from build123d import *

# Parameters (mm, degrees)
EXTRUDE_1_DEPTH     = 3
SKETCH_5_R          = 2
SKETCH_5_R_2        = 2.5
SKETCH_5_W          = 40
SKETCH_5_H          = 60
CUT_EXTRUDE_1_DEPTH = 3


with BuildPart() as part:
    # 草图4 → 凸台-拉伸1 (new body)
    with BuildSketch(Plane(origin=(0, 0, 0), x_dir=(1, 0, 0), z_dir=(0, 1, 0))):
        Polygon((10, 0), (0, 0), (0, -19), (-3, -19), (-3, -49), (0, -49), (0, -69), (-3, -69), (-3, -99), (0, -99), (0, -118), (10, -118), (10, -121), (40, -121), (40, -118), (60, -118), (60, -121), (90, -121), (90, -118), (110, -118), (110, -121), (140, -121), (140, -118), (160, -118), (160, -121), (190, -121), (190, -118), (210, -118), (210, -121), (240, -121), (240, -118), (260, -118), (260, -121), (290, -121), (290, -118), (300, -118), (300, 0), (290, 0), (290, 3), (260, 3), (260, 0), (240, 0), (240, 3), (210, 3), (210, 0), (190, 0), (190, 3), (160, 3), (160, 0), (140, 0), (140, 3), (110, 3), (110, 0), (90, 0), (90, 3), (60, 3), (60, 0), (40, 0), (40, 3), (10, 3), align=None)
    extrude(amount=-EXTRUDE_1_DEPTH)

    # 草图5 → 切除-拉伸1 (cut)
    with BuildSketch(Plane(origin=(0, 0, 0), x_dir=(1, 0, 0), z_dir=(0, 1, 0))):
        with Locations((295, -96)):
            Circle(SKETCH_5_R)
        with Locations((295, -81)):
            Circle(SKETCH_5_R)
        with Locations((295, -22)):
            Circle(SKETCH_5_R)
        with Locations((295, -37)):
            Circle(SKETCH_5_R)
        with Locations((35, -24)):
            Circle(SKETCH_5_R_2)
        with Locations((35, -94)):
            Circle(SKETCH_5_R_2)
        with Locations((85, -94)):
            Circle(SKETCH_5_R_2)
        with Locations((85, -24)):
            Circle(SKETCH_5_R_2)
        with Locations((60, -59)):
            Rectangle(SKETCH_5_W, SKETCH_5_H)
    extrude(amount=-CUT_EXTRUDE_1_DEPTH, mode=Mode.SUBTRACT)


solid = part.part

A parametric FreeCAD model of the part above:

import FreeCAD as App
import Part
import Sketcher
from FreeCAD import Vector
Q = App.Units.Quantity

doc = App.newDocument("Part")
params = doc.addObject("Spreadsheet::Sheet", "Params")
for row, (alias, value) in enumerate([
    ("sketch1_width", "10 mm"),
    ("sketch1_width2", "3 mm"),
    ("sketch1_width3", "30 mm"),
    ("sketch1_width4", "20 mm"),
    ("sketch1_height", "19 mm"),
    ("pad1_length", "3 mm"),
    ("sketch2_diameter", "4 mm"),
    ("sketch2_diameter2", "5 mm"),
    ("sketch2_width", "40 mm"),
    ("sketch2_height", "60 mm"),
    ("pocket1_length", "3 mm"),
], start=1):
    params.set(f"A{row}", alias)
    params.set(f"B{row}", "=" + value)
    params.setAlias(f"B{row}", alias)

body = doc.addObject("PartDesign::Body", "Body")

# Sketch on XZ plane
sketch1 = doc.addObject("Sketcher::SketchObject", "Sketch")
body.addObject(sketch1)
sketch1.AttachmentSupport = (doc.XZ_Plane, [""])
sketch1.MapMode = "FlatFace"
sketch1.addGeometry([
    Part.LineSegment(Vector(10, 0, 0), Vector(0, 0, 0)),  # 0
    Part.LineSegment(Vector(0, 0, 0), Vector(0, 19, 0)),  # 1
    Part.LineSegment(Vector(0, 19, 0), Vector(-3, 19, 0)),  # 2
    Part.LineSegment(Vector(-3, 19, 0), Vector(-3, 49, 0)),  # 3
    Part.LineSegment(Vector(-3, 49, 0), Vector(0, 49, 0)),  # 4
    Part.LineSegment(Vector(0, 49, 0), Vector(0, 69, 0)),  # 5
    Part.LineSegment(Vector(0, 69, 0), Vector(-3, 69, 0)),  # 6
    Part.LineSegment(Vector(-3, 69, 0), Vector(-3, 99, 0)),  # 7
    Part.LineSegment(Vector(-3, 99, 0), Vector(0, 99, 0)),  # 8
    Part.LineSegment(Vector(0, 99, 0), Vector(0, 118, 0)),  # 9
    Part.LineSegment(Vector(0, 118, 0), Vector(10, 118, 0)),  # 10
    Part.LineSegment(Vector(10, 118, 0), Vector(10, 121, 0)),  # 11
    Part.LineSegment(Vector(10, 121, 0), Vector(40, 121, 0)),  # 12
    Part.LineSegment(Vector(40, 121, 0), Vector(40, 118, 0)),  # 13
    Part.LineSegment(Vector(40, 118, 0), Vector(60, 118, 0)),  # 14
    Part.LineSegment(Vector(60, 118, 0), Vector(60, 121, 0)),  # 15
    Part.LineSegment(Vector(60, 121, 0), Vector(90, 121, 0)),  # 16
    Part.LineSegment(Vector(90, 121, 0), Vector(90, 118, 0)),  # 17
    Part.LineSegment(Vector(90, 118, 0), Vector(110, 118, 0)),  # 18
    Part.LineSegment(Vector(110, 118, 0), Vector(110, 121, 0)),  # 19
    Part.LineSegment(Vector(110, 121, 0), Vector(140, 121, 0)),  # 20
    Part.LineSegment(Vector(140, 121, 0), Vector(140, 118, 0)),  # 21
    Part.LineSegment(Vector(140, 118, 0), Vector(160, 118, 0)),  # 22
    Part.LineSegment(Vector(160, 118, 0), Vector(160, 121, 0)),  # 23
    Part.LineSegment(Vector(160, 121, 0), Vector(190, 121, 0)),  # 24
    Part.LineSegment(Vector(190, 121, 0), Vector(190, 118, 0)),  # 25
    Part.LineSegment(Vector(190, 118, 0), Vector(210, 118, 0)),  # 26
    Part.LineSegment(Vector(210, 118, 0), Vector(210, 121, 0)),  # 27
    Part.LineSegment(Vector(210, 121, 0), Vector(240, 121, 0)),  # 28
    Part.LineSegment(Vector(240, 121, 0), Vector(240, 118, 0)),  # 29
    Part.LineSegment(Vector(240, 118, 0), Vector(260, 118, 0)),  # 30
    Part.LineSegment(Vector(260, 118, 0), Vector(260, 121, 0)),  # 31
    Part.LineSegment(Vector(260, 121, 0), Vector(290, 121, 0)),  # 32
    Part.LineSegment(Vector(290, 121, 0), Vector(290, 118, 0)),  # 33
    Part.LineSegment(Vector(290, 118, 0), Vector(300, 118, 0)),  # 34
    Part.LineSegment(Vector(300, 118, 0), Vector(300, 0, 0)),  # 35
    Part.LineSegment(Vector(300, 0, 0), Vector(290, 0, 0)),  # 36
    Part.LineSegment(Vector(290, 0, 0), Vector(290, -3, 0)),  # 37
    Part.LineSegment(Vector(290, -3, 0), Vector(260, -3, 0)),  # 38
    Part.LineSegment(Vector(260, -3, 0), Vector(260, 0, 0)),  # 39
    Part.LineSegment(Vector(260, 0, 0), Vector(240, 0, 0)),  # 40
    Part.LineSegment(Vector(240, 0, 0), Vector(240, -3, 0)),  # 41
    Part.LineSegment(Vector(240, -3, 0), Vector(210, -3, 0)),  # 42
    Part.LineSegment(Vector(210, -3, 0), Vector(210, 0, 0)),  # 43
    Part.LineSegment(Vector(210, 0, 0), Vector(190, 0, 0)),  # 44
    Part.LineSegment(Vector(190, 0, 0), Vector(190, -3, 0)),  # 45
    Part.LineSegment(Vector(190, -3, 0), Vector(160, -3, 0)),  # 46
    Part.LineSegment(Vector(160, -3, 0), Vector(160, 0, 0)),  # 47
    Part.LineSegment(Vector(160, 0, 0), Vector(140, 0, 0)),  # 48
    Part.LineSegment(Vector(140, 0, 0), Vector(140, -3, 0)),  # 49
    Part.LineSegment(Vector(140, -3, 0), Vector(110, -3, 0)),  # 50
    Part.LineSegment(Vector(110, -3, 0), Vector(110, 0, 0)),  # 51
    Part.LineSegment(Vector(110, 0, 0), Vector(90, 0, 0)),  # 52
    Part.LineSegment(Vector(90, 0, 0), Vector(90, -3, 0)),  # 53
    Part.LineSegment(Vector(90, -3, 0), Vector(60, -3, 0)),  # 54
    Part.LineSegment(Vector(60, -3, 0), Vector(60, 0, 0)),  # 55
    Part.LineSegment(Vector(60, 0, 0), Vector(40, 0, 0)),  # 56
    Part.LineSegment(Vector(40, 0, 0), Vector(40, -3, 0)),  # 57
    Part.LineSegment(Vector(40, -3, 0), Vector(10, -3, 0)),  # 58
    Part.LineSegment(Vector(10, -3, 0), Vector(10, 0, 0)),  # 59
], False)
sketch1.addConstraint([
    Sketcher.Constraint("Coincident", 0, 2, 1, 1),
    Sketcher.Constraint("Coincident", 1, 2, 2, 1),
    Sketcher.Constraint("Coincident", 2, 2, 3, 1),
    Sketcher.Constraint("Coincident", 3, 2, 4, 1),
    Sketcher.Constraint("Coincident", 4, 2, 5, 1),
    Sketcher.Constraint("Coincident", 5, 2, 6, 1),
    Sketcher.Constraint("Coincident", 6, 2, 7, 1),
    Sketcher.Constraint("Coincident", 7, 2, 8, 1),
    Sketcher.Constraint("Coincident", 8, 2, 9, 1),
    Sketcher.Constraint("Coincident", 9, 2, 10, 1),
    Sketcher.Constraint("Coincident", 10, 2, 11, 1),
    Sketcher.Constraint("Coincident", 11, 2, 12, 1),
    Sketcher.Constraint("Coincident", 12, 2, 13, 1),
    Sketcher.Constraint("Coincident", 13, 2, 14, 1),
    Sketcher.Constraint("Coincident", 14, 2, 15, 1),
    Sketcher.Constraint("Coincident", 15, 2, 16, 1),
    Sketcher.Constraint("Coincident", 16, 2, 17, 1),
    Sketcher.Constraint("Coincident", 17, 2, 18, 1),
    Sketcher.Constraint("Coincident", 18, 2, 19, 1),
    Sketcher.Constraint("Coincident", 19, 2, 20, 1),
    Sketcher.Constraint("Coincident", 20, 2, 21, 1),
    Sketcher.Constraint("Coincident", 21, 2, 22, 1),
    Sketcher.Constraint("Coincident", 22, 2, 23, 1),
    Sketcher.Constraint("Coincident", 23, 2, 24, 1),
    Sketcher.Constraint("Coincident", 24, 2, 25, 1),
    Sketcher.Constraint("Coincident", 25, 2, 26, 1),
    Sketcher.Constraint("Coincident", 26, 2, 27, 1),
    Sketcher.Constraint("Coincident", 27, 2, 28, 1),
    Sketcher.Constraint("Coincident", 28, 2, 29, 1),
    Sketcher.Constraint("Coincident", 29, 2, 30, 1),
    Sketcher.Constraint("Coincident", 30, 2, 31, 1),
    Sketcher.Constraint("Coincident", 31, 2, 32, 1),
    Sketcher.Constraint("Coincident", 32, 2, 33, 1),
    Sketcher.Constraint("Coincident", 33, 2, 34, 1),
    Sketcher.Constraint("Coincident", 34, 2, 35, 1),
    Sketcher.Constraint("Coincident", 35, 2, 36, 1),
    Sketcher.Constraint("Coincident", 36, 2, 37, 1),
    Sketcher.Constraint("Coincident", 37, 2, 38, 1),
    Sketcher.Constraint("Coincident", 38, 2, 39, 1),
    Sketcher.Constraint("Coincident", 39, 2, 40, 1),
    Sketcher.Constraint("Coincident", 40, 2, 41, 1),
    Sketcher.Constraint("Coincident", 41, 2, 42, 1),
    Sketcher.Constraint("Coincident", 42, 2, 43, 1),
    Sketcher.Constraint("Coincident", 43, 2, 44, 1),
    Sketcher.Constraint("Coincident", 44, 2, 45, 1),
    Sketcher.Constraint("Coincident", 45, 2, 46, 1),
    Sketcher.Constraint("Coincident", 46, 2, 47, 1),
    Sketcher.Constraint("Coincident", 47, 2, 48, 1),
    Sketcher.Constraint("Coincident", 48, 2, 49, 1),
    Sketcher.Constraint("Coincident", 49, 2, 50, 1),
    Sketcher.Constraint("Coincident", 50, 2, 51, 1),
    Sketcher.Constraint("Coincident", 51, 2, 52, 1),
    Sketcher.Constraint("Coincident", 52, 2, 53, 1),
    Sketcher.Constraint("Coincident", 53, 2, 54, 1),
    Sketcher.Constraint("Coincident", 54, 2, 55, 1),
    Sketcher.Constraint("Coincident", 55, 2, 56, 1),
    Sketcher.Constraint("Coincident", 56, 2, 57, 1),
    Sketcher.Constraint("Coincident", 57, 2, 58, 1),
    Sketcher.Constraint("Coincident", 58, 2, 59, 1),
    Sketcher.Constraint("Coincident", 59, 2, 0, 1),
    Sketcher.Constraint("Horizontal", 0),
    Sketcher.Constraint("Vertical", 1),
    Sketcher.Constraint("Horizontal", 2),
    Sketcher.Constraint("Vertical", 3),
    Sketcher.Constraint("Horizontal", 4),
    Sketcher.Constraint("Vertical", 5),
    Sketcher.Constraint("Horizontal", 6),
    Sketcher.Constraint("Vertical", 7),
    Sketcher.Constraint("Horizontal", 8),
    Sketcher.Constraint("Vertical", 9),
    Sketcher.Constraint("Horizontal", 10),
    Sketcher.Constraint("Vertical", 11),
    Sketcher.Constraint("Horizontal", 12),
    Sketcher.Constraint("Vertical", 13),
    Sketcher.Constraint("Horizontal", 14),
    Sketcher.Constraint("Vertical", 15),
    Sketcher.Constraint("Horizontal", 16),
    Sketcher.Constraint("Vertical", 17),
    Sketcher.Constraint("Horizontal", 18),
    Sketcher.Constraint("Vertical", 19),
    Sketcher.Constraint("Horizontal", 20),
    Sketcher.Constraint("Vertical", 21),
    Sketcher.Constraint("Horizontal", 22),
    Sketcher.Constraint("Vertical", 23),
    Sketcher.Constraint("Horizontal", 24),
    Sketcher.Constraint("Vertical", 25),
    Sketcher.Constraint("Horizontal", 26),
    Sketcher.Constraint("Vertical", 27),
    Sketcher.Constraint("Horizontal", 28),
    Sketcher.Constraint("Vertical", 29),
    Sketcher.Constraint("Horizontal", 30),
    Sketcher.Constraint("Vertical", 31),
    Sketcher.Constraint("Horizontal", 32),
    Sketcher.Constraint("Vertical", 33),
    Sketcher.Constraint("Horizontal", 34),
    Sketcher.Constraint("Vertical", 35),
    Sketcher.Constraint("Horizontal", 36),
    Sketcher.Constraint("Vertical", 37),
    Sketcher.Constraint("Horizontal", 38),
    Sketcher.Constraint("Vertical", 39),
    Sketcher.Constraint("Horizontal", 40),
    Sketcher.Constraint("Vertical", 41),
    Sketcher.Constraint("Horizontal", 42),
    Sketcher.Constraint("Vertical", 43),
    Sketcher.Constraint("Horizontal", 44),
    Sketcher.Constraint("Vertical", 45),
    Sketcher.Constraint("Horizontal", 46),
    Sketcher.Constraint("Vertical", 47),
    Sketcher.Constraint("Horizontal", 48),
    Sketcher.Constraint("Vertical", 49),
    Sketcher.Constraint("Horizontal", 50),
    Sketcher.Constraint("Vertical", 51),
    Sketcher.Constraint("Horizontal", 52),
    Sketcher.Constraint("Vertical", 53),
    Sketcher.Constraint("Horizontal", 54),
    Sketcher.Constraint("Vertical", 55),
    Sketcher.Constraint("Horizontal", 56),
    Sketcher.Constraint("Vertical", 57),
    Sketcher.Constraint("Horizontal", 58),
    Sketcher.Constraint("Vertical", 59),
    Sketcher.Constraint("Coincident", 0, 2, -1, 1),
    Sketcher.Constraint("PointOnObject", 4, 2, -2),
    Sketcher.Constraint("PointOnObject", 8, 2, -2),
    Sketcher.Constraint("PointOnObject", 35, 2, -1),
    Sketcher.Constraint("PointOnObject", 39, 2, -1),
    Sketcher.Constraint("PointOnObject", 43, 2, -1),
    Sketcher.Constraint("PointOnObject", 47, 2, -1),
    Sketcher.Constraint("PointOnObject", 51, 2, -1),
    Sketcher.Constraint("PointOnObject", 55, 2, -1),
    Sketcher.Constraint("Horizontal", 10, 2, 13, 2),
    Sketcher.Constraint("Horizontal", 12, 2, 15, 2),
    Sketcher.Constraint("Horizontal", 14, 2, 17, 2),
    Sketcher.Constraint("Horizontal", 16, 2, 19, 2),
    Sketcher.Constraint("Horizontal", 18, 2, 21, 2),
    Sketcher.Constraint("Horizontal", 20, 2, 23, 2),
    Sketcher.Constraint("Horizontal", 22, 2, 25, 2),
    Sketcher.Constraint("Horizontal", 24, 2, 27, 2),
    Sketcher.Constraint("Horizontal", 26, 2, 29, 2),
    Sketcher.Constraint("Horizontal", 28, 2, 31, 2),
    Sketcher.Constraint("Horizontal", 30, 2, 33, 2),
    Sketcher.Constraint("Horizontal", 38, 2, 41, 2),
    Sketcher.Constraint("Horizontal", 42, 2, 45, 2),
    Sketcher.Constraint("Horizontal", 46, 2, 49, 2),
    Sketcher.Constraint("Horizontal", 50, 2, 53, 2),
    Sketcher.Constraint("Horizontal", 54, 2, 57, 2),
    Sketcher.Constraint("Vertical", 3, 2, 6, 2),
    Sketcher.Constraint("Vertical", 33, 2, 36, 2),
    Sketcher.Constraint("Vertical", 31, 2, 38, 2),
    Sketcher.Constraint("Vertical", 29, 2, 40, 2),
    Sketcher.Constraint("Vertical", 27, 2, 42, 2),
    Sketcher.Constraint("Vertical", 25, 2, 44, 2),
    Sketcher.Constraint("Vertical", 23, 2, 46, 2),
    Sketcher.Constraint("Vertical", 21, 2, 48, 2),
    Sketcher.Constraint("Vertical", 19, 2, 50, 2),
    Sketcher.Constraint("Vertical", 17, 2, 52, 2),
    Sketcher.Constraint("Vertical", 15, 2, 54, 2),
    Sketcher.Constraint("Vertical", 13, 2, 56, 2),
    Sketcher.Constraint("Vertical", 11, 2, 58, 2),
    Sketcher.Constraint("Equal", 12, 16),
    Sketcher.Constraint("Equal", 14, 18),
    Sketcher.Constraint("Equal", 16, 20),
    Sketcher.Constraint("Equal", 18, 22),
    Sketcher.Constraint("Equal", 20, 24),
    Sketcher.Constraint("Equal", 22, 26),
    Sketcher.Constraint("Equal", 24, 28),
    Sketcher.Constraint("Equal", 26, 30),
    Sketcher.Constraint("Equal", 28, 32),
    Sketcher.Constraint("Equal", 10, 34),
    Sketcher.Constraint("Equal", 58, 3),
    Sketcher.Constraint("Equal", 56, 5),
    Sketcher.Constraint("Equal", 3, 7),
    Sketcher.Constraint("Equal", 1, 9),
    Sketcher.Constraint("Equal", 8, 11),
    Sketcher.Constraint("Equal", 33, 37),
    Sketcher.Constraint("DistanceX", 0, 2, 0, 1, Q("10 mm")),
    Sketcher.Constraint("DistanceX", 2, 2, 2, 1, Q("3 mm")),
    Sketcher.Constraint("DistanceX", 12, 1, 12, 2, Q("30 mm")),
    Sketcher.Constraint("DistanceX", 14, 1, 14, 2, Q("20 mm")),
    Sketcher.Constraint("DistanceY", 1, 1, 1, 2, Q("19 mm")),
])
sketch1.setExpression("Constraints[174]", "Params.sketch1_width")
sketch1.setExpression("Constraints[175]", "Params.sketch1_width2")
sketch1.setExpression("Constraints[176]", "Params.sketch1_width3")
sketch1.setExpression("Constraints[177]", "Params.sketch1_width4")
sketch1.setExpression("Constraints[178]", "Params.sketch1_height")
pad1 = doc.addObject("PartDesign::Pad", "Pad")
body.addObject(pad1)
pad1.Profile = sketch1
pad1.setExpression("Length", "Params.pad1_length")

# Sketch on XZ plane
sketch2 = doc.addObject("Sketcher::SketchObject", "Sketch001")
body.addObject(sketch2)
sketch2.AttachmentSupport = (doc.XZ_Plane, [""])
sketch2.MapMode = "FlatFace"
sketch2.addGeometry([
    Part.Circle(Vector(295, 96, 0), Vector(0, 0, 1), 2),  # 0
    Part.Circle(Vector(295, 81, 0), Vector(0, 0, 1), 2),  # 1
    Part.Circle(Vector(295, 22, 0), Vector(0, 0, 1), 2),  # 2
    Part.Circle(Vector(295, 37, 0), Vector(0, 0, 1), 2),  # 3
    Part.Circle(Vector(35, 24, 0), Vector(0, 0, 1), 2.5),  # 4
    Part.Circle(Vector(35, 94, 0), Vector(0, 0, 1), 2.5),  # 5
    Part.Circle(Vector(85, 94, 0), Vector(0, 0, 1), 2.5),  # 6
    Part.Circle(Vector(85, 24, 0), Vector(0, 0, 1), 2.5),  # 7
    Part.LineSegment(Vector(40, 29, 0), Vector(40, 89, 0)),  # 8
    Part.LineSegment(Vector(40, 89, 0), Vector(80, 89, 0)),  # 9
    Part.LineSegment(Vector(80, 89, 0), Vector(80, 29, 0)),  # 10
    Part.LineSegment(Vector(80, 29, 0), Vector(40, 29, 0)),  # 11
], False)
sketch2.addConstraint([
    Sketcher.Constraint("Coincident", 8, 2, 9, 1),
    Sketcher.Constraint("Coincident", 9, 2, 10, 1),
    Sketcher.Constraint("Coincident", 10, 2, 11, 1),
    Sketcher.Constraint("Coincident", 11, 2, 8, 1),
    Sketcher.Constraint("Vertical", 8),
    Sketcher.Constraint("Horizontal", 9),
    Sketcher.Constraint("Vertical", 10),
    Sketcher.Constraint("Horizontal", 11),
    Sketcher.Constraint("Equal", 0, 1),
    Sketcher.Constraint("Equal", 1, 2),
    Sketcher.Constraint("Equal", 2, 3),
    Sketcher.Constraint("Equal", 4, 5),
    Sketcher.Constraint("Equal", 5, 6),
    Sketcher.Constraint("Equal", 6, 7),
    Sketcher.Constraint("Horizontal", 5, 3, 6, 3),
    Sketcher.Constraint("Horizontal", 4, 3, 7, 3),
    Sketcher.Constraint("Vertical", 0, 3, 1, 3),
    Sketcher.Constraint("Vertical", 1, 3, 2, 3),
    Sketcher.Constraint("Vertical", 2, 3, 3, 3),
    Sketcher.Constraint("Vertical", 4, 3, 5, 3),
    Sketcher.Constraint("Vertical", 6, 3, 7, 3),
    Sketcher.Constraint("Diameter", 0, Q("4 mm")),
    Sketcher.Constraint("Diameter", 4, Q("5 mm")),
    Sketcher.Constraint("DistanceX", 9, 1, 9, 2, Q("40 mm")),
    Sketcher.Constraint("DistanceY", 8, 1, 8, 2, Q("60 mm")),
    Sketcher.Constraint("DistanceX", -1, 1, 0, 3, Q("295 mm")),
    Sketcher.Constraint("DistanceY", -1, 1, 0, 3, Q("96 mm")),
    Sketcher.Constraint("DistanceY", -1, 1, 1, 3, Q("81 mm")),
    Sketcher.Constraint("DistanceY", -1, 1, 2, 3, Q("22 mm")),
    Sketcher.Constraint("DistanceY", -1, 1, 3, 3, Q("37 mm")),
    Sketcher.Constraint("DistanceX", -1, 1, 4, 3, Q("35 mm")),
    Sketcher.Constraint("DistanceY", -1, 1, 4, 3, Q("24 mm")),
    Sketcher.Constraint("DistanceY", -1, 1, 5, 3, Q("94 mm")),
    Sketcher.Constraint("DistanceX", -1, 1, 6, 3, Q("85 mm")),
    Sketcher.Constraint("DistanceX", -1, 1, 8, 2, Q("40 mm")),
    Sketcher.Constraint("DistanceY", -1, 1, 8, 2, Q("89 mm")),
])
sketch2.setExpression("Constraints[21]", "Params.sketch2_diameter")
sketch2.setExpression("Constraints[22]", "Params.sketch2_diameter2")
sketch2.setExpression("Constraints[23]", "Params.sketch2_width")
sketch2.setExpression("Constraints[24]", "Params.sketch2_height")
pocket1 = doc.addObject("PartDesign::Pocket", "Pocket")
body.addObject(pocket1)
pocket1.Profile = sketch2
pocket1.setExpression("Length", "Params.pocket1_length")
pocket1.Reversed = True

doc.recompute()
